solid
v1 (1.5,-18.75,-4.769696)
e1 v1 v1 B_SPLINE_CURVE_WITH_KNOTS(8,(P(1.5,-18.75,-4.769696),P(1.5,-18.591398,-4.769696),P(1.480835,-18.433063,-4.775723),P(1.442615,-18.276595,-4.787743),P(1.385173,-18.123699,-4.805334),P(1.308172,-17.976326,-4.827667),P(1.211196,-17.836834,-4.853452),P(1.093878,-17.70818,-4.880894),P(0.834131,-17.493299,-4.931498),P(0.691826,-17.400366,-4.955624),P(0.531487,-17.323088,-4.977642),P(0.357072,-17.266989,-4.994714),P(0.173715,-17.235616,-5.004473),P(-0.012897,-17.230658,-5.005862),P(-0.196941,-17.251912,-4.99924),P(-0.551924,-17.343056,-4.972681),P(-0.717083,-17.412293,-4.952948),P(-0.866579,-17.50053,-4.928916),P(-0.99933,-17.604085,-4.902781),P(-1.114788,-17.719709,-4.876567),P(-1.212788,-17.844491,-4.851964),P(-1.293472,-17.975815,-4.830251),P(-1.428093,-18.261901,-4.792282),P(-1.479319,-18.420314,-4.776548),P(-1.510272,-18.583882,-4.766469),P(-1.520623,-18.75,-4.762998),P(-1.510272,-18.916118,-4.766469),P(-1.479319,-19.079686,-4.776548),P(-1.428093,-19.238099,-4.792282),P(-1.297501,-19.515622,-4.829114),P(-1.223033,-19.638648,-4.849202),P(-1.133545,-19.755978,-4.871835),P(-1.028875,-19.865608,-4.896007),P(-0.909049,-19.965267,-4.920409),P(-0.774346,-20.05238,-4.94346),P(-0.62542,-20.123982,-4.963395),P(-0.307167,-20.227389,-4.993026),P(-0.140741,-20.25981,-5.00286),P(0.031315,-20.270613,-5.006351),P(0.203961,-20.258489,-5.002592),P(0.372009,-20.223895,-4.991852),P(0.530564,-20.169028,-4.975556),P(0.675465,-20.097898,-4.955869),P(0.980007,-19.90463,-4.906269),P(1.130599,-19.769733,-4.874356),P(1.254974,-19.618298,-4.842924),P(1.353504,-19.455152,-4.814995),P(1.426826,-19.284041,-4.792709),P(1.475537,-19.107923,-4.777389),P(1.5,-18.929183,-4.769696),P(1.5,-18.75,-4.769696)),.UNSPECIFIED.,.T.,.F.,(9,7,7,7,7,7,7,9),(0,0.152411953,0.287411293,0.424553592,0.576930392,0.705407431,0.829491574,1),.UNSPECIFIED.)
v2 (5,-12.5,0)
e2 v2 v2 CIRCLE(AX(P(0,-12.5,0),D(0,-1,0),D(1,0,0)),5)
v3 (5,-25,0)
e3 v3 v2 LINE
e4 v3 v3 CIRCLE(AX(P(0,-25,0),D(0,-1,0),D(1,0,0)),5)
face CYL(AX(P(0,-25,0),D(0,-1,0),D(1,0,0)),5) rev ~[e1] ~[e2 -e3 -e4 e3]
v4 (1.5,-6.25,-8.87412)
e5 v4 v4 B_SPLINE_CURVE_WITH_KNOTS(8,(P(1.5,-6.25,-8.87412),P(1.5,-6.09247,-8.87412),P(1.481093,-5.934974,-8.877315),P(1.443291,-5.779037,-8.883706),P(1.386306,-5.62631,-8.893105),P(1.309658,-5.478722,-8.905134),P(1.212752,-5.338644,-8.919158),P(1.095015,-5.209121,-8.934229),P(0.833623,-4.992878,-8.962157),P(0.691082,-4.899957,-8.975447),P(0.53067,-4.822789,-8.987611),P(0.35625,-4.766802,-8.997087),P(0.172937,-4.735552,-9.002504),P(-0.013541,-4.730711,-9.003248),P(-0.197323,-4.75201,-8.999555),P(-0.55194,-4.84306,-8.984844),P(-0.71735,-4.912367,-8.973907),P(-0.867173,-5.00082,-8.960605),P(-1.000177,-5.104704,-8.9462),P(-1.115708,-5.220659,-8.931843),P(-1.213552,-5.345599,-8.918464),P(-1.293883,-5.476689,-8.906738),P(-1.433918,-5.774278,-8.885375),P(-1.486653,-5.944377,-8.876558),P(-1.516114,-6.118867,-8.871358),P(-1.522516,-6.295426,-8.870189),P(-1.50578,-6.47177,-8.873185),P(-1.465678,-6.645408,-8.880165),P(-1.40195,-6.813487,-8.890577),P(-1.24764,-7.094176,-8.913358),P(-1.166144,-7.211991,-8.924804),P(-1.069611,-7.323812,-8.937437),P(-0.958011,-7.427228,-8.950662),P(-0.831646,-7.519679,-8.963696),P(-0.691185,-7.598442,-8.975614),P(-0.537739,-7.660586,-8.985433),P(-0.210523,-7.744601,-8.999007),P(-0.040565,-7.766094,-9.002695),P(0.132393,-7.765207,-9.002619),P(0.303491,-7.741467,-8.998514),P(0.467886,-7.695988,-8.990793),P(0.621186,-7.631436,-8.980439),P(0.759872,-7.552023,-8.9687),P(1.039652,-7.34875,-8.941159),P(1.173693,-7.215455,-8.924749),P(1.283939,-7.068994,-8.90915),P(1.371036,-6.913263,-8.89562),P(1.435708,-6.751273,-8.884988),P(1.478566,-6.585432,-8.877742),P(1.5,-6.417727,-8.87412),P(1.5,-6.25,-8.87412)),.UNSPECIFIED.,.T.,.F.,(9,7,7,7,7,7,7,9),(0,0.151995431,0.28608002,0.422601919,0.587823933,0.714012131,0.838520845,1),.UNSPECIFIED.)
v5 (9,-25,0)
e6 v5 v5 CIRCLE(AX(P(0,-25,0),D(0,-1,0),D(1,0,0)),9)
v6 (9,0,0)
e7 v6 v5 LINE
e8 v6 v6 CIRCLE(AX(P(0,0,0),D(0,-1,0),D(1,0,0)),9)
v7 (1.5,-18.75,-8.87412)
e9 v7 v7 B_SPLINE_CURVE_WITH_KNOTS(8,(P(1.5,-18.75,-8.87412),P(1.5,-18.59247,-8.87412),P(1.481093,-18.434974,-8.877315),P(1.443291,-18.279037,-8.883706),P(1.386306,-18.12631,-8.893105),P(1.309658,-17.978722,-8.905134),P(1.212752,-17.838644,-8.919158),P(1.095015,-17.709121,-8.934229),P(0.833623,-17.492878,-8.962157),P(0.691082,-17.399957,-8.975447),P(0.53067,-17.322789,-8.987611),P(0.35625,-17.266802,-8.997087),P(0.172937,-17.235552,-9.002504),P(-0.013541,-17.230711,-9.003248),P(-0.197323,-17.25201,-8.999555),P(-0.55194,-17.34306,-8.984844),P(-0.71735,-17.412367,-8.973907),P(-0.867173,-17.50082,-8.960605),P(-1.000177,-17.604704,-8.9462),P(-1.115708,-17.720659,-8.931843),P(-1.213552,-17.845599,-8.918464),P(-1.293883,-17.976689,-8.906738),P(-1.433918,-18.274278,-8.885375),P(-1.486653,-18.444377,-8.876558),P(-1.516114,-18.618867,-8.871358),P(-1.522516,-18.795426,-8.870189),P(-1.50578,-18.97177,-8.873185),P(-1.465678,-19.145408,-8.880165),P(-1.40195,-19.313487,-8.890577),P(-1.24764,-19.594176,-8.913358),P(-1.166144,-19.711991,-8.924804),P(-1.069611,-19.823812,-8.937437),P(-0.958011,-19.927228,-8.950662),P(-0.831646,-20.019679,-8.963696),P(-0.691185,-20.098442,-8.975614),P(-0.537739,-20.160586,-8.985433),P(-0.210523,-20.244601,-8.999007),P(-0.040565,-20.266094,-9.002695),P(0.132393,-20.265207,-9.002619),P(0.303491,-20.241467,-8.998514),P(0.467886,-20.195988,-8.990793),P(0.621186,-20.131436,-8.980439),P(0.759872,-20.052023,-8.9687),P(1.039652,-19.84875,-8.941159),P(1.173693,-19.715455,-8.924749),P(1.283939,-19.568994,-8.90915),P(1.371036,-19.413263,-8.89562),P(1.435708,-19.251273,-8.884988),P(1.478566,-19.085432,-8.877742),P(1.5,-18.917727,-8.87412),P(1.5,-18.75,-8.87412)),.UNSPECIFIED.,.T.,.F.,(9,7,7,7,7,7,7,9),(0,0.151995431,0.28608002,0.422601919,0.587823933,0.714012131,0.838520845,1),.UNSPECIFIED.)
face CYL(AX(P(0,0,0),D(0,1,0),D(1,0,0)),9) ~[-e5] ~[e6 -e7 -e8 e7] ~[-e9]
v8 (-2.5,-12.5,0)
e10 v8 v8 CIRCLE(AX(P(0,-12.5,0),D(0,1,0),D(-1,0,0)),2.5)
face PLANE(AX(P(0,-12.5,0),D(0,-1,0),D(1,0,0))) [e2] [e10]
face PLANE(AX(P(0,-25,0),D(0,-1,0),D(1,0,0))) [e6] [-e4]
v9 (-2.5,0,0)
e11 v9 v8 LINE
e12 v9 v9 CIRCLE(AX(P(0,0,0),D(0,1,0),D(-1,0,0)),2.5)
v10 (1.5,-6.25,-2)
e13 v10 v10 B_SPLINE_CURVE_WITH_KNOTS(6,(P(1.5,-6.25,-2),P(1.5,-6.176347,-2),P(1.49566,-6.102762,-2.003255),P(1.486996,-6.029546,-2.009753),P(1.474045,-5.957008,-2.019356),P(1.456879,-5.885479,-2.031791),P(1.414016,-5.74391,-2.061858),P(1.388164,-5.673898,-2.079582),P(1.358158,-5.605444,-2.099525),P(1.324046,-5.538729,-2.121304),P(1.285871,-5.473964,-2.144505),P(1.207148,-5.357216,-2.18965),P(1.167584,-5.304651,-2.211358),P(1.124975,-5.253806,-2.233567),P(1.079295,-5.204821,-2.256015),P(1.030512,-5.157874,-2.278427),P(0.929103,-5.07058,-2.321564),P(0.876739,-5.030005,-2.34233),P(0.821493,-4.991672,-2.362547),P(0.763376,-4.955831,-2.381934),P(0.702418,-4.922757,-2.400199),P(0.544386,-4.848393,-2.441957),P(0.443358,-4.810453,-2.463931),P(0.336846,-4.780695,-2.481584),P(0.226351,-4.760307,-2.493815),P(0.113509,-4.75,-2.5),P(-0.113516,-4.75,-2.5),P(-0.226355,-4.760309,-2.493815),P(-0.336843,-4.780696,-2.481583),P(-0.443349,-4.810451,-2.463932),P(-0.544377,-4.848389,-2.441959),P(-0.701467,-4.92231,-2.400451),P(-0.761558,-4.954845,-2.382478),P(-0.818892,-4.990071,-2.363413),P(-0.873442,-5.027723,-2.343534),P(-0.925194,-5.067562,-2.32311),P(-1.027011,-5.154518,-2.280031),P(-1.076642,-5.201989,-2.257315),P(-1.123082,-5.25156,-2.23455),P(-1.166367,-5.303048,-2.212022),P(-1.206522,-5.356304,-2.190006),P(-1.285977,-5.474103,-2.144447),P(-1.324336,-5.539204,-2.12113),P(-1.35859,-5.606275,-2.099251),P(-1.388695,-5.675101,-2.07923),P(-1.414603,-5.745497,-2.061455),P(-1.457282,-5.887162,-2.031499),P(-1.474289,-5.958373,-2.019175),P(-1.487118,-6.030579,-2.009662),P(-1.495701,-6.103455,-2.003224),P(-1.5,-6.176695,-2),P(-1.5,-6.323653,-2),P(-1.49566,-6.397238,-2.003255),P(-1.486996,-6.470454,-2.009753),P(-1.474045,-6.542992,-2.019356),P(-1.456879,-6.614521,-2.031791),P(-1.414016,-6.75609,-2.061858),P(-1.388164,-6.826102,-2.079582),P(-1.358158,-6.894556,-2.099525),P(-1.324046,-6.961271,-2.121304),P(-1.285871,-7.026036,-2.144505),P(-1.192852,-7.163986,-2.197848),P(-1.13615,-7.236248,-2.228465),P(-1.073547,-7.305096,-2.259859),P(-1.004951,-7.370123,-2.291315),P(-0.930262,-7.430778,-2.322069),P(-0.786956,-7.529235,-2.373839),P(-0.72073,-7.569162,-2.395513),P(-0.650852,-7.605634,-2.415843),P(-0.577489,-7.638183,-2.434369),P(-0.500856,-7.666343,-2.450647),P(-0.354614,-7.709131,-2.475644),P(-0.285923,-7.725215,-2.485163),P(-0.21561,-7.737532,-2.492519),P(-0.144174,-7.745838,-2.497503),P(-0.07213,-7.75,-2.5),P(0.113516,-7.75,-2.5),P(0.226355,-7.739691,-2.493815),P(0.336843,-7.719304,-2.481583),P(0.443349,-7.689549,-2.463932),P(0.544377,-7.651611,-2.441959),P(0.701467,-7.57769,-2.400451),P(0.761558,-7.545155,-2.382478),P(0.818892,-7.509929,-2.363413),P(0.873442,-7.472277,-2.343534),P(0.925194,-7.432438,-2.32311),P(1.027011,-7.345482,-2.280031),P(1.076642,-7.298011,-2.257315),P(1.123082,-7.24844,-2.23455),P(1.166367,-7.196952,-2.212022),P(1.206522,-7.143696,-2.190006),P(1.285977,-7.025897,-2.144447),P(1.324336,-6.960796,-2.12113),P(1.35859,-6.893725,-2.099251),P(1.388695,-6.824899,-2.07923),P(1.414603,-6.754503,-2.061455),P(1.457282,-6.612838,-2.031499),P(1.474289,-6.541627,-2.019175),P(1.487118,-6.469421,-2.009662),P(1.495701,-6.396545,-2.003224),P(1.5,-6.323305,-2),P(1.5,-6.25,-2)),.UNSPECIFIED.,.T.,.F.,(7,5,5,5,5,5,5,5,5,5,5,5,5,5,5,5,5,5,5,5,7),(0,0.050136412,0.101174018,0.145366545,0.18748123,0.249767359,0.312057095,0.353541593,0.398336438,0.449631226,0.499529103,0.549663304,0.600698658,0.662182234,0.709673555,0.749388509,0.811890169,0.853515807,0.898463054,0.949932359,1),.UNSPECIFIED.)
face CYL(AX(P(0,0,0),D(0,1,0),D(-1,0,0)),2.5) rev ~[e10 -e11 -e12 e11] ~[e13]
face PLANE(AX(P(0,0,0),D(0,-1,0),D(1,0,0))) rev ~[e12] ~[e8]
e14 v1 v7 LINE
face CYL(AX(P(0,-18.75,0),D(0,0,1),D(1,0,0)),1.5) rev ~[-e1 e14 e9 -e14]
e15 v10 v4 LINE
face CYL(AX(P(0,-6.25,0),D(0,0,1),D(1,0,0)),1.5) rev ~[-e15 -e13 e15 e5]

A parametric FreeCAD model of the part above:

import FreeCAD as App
import Part
import Sketcher

V = App.Vector

doc = App.newDocument("Part")
params = doc.addObject("Spreadsheet::Sheet", "Params")
for row, (alias, value) in enumerate([
    ("sketch1_diameter", "18 mm"),
    ("pad1_length", "25 mm"),
    ("sketch2_diameter", "10 mm"),
    ("pocket1_length", "12.5 mm"),
    ("sketch3_diameter", "5 mm"),
    ("pocket2_length", "12.5 mm"),
    ("sketch4_diameter", "3 mm"),
    ("pocket3_length", "25 mm"),
], start=1):
    params.set(f"A{row}", alias)
    params.set(f"B{row}", "=" + value)
    params.setAlias(f"B{row}", alias)

body = doc.addObject("PartDesign::Body", "Body")

# Sketch on XZ plane
sketch1 = body.newObject("Sketcher::SketchObject", "Sketch")
sketch1.AttachmentSupport = (doc.getObject("XZ_Plane"), [""])
sketch1.MapMode = "FlatFace"
sketch1.addGeometry(Part.Circle(V(0, 0, 0), V(0, 0, 1), 9), False)
sketch1.addConstraint([
    Sketcher.Constraint("Coincident", 0, 3, -1, 1),
    Sketcher.Constraint("Diameter", 0, 18.0),
])
sketch1.setExpression("Constraints[1]", "Params.sketch1_diameter")
pad1 = body.newObject("PartDesign::Pad", "Pad")
pad1.Profile = sketch1
pad1.setExpression("Length", "Params.pad1_length")

# Sketch on XZ plane
sketch2 = body.newObject("Sketcher::SketchObject", "Sketch001")
sketch2.AttachmentSupport = (doc.getObject("XZ_Plane"), [""])
sketch2.MapMode = "FlatFace"
sketch2.AttachmentOffset = App.Placement(V(0, 0, 25), App.Rotation())
sketch2.addGeometry(Part.Circle(V(0, 0, 0), V(0, 0, 1), 5), False)
sketch2.addConstraint([
    Sketcher.Constraint("Coincident", 0, 3, -1, 1),
    Sketcher.Constraint("Diameter", 0, 10.0),
])
sketch2.setExpression("Constraints[1]", "Params.sketch2_diameter")
pocket1 = body.newObject("PartDesign::Pocket", "Pocket")
pocket1.Profile = sketch2
pocket1.setExpression("Length", "Params.pocket1_length")

# Sketch on XZ plane
sketch3 = body.newObject("Sketcher::SketchObject", "Sketch002")
sketch3.AttachmentSupport = (doc.getObject("XZ_Plane"), [""])
sketch3.MapMode = "FlatFace"
sketch3.addGeometry(Part.Circle(V(0, 0, 0), V(0, 0, 1), 2.5), False)
sketch3.addConstraint([
    Sketcher.Constraint("Coincident", 0, 3, -1, 1),
    Sketcher.Constraint("Diameter", 0, 5.0),
])
sketch3.setExpression("Constraints[1]", "Params.sketch3_diameter")
pocket2 = body.newObject("PartDesign::Pocket", "Pocket001")
pocket2.Profile = sketch3
pocket2.setExpression("Length", "Params.pocket2_length")
pocket2.Reversed = True

# Sketch on XY plane
sketch4 = body.newObject("Sketcher::SketchObject", "Sketch003")
sketch4.AttachmentSupport = (doc.getObject("XY_Plane"), [""])
sketch4.MapMode = "FlatFace"
sketch4.addGeometry([
    Part.Circle(V(0, -6.25, 0), V(0, 0, 1), 1.5),
    Part.Circle(V(0, -18.75, 0), V(0, 0, 1), 1.5),
], False)
sketch4.addConstraint([
    Sketcher.Constraint("Equal", 0, 1),
    Sketcher.Constraint("PointOnObject", 0, 3, -2),
    Sketcher.Constraint("PointOnObject", 1, 3, -2),
    Sketcher.Constraint("Diameter", 0, 3.0),
    Sketcher.Constraint("DistanceY", 1, 3, 0, 3, 12.5),
    Sketcher.Constraint("DistanceY", 0, 3, -1, 1, 6.25),
])
sketch4.setExpression("Constraints[3]", "Params.sketch4_diameter")
pocket3 = body.newObject("PartDesign::Pocket", "Pocket002")
pocket3.Profile = sketch4
pocket3.setExpression("Length", "Params.pocket3_length")

doc.recompute()
